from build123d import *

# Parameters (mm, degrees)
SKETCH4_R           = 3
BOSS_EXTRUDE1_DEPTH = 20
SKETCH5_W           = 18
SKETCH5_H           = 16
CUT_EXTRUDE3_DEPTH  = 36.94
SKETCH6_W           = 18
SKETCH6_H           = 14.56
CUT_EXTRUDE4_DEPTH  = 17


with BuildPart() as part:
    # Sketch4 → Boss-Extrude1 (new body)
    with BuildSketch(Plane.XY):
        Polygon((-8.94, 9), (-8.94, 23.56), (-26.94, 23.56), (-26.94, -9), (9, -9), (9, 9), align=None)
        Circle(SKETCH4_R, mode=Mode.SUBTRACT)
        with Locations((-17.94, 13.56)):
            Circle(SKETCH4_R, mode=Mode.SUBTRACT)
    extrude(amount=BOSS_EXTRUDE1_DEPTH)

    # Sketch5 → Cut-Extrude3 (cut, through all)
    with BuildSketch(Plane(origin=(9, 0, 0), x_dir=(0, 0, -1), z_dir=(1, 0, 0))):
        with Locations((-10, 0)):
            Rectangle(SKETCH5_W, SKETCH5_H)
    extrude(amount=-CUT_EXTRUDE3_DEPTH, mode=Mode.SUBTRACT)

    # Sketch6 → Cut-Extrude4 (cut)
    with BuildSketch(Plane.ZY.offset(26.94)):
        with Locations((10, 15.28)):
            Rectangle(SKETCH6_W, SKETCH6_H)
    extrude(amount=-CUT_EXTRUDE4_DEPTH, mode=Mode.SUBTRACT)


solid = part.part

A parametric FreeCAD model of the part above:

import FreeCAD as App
import Part
import Sketcher
Q = App.Units.Quantity

doc = App.newDocument("Part")
params = doc.addObject("Spreadsheet::Sheet", "Params")
for row, (alias, value) in enumerate([
    ("sketch1_diameter", "6 mm"),
    ("sketch1_width", "18 mm"),
    ("sketch1_width2", "35.94 mm"),
    ("sketch1_height", "14.56 mm"),
    ("pad1_length", "20 mm"),
    ("sketch2_width", "16 mm"),
    ("sketch2_height", "18 mm"),
    ("sketch3_height", "18 mm"),
    ("sketch3_width", "14.56 mm"),
    ("pocket2_length", "17 mm"),
], start=1):
    params.set(f"A{row}", alias)
    params.set(f"B{row}", "=" + value)
    params.setAlias(f"B{row}", alias)

body = doc.addObject("PartDesign::Body", "Body")

sketch1 = doc.addObject("Sketcher::SketchObject", "Sketch")
body.addObject(sketch1)
sketch1.AttachmentSupport = (doc.XY_Plane, [""])
sketch1.MapMode = "FlatFace"
sketch1.addGeometry(Part.LineSegment(App.Vector(-8.9, 9, 0), App.Vector(-8.9, 23.6, 0)), False)
sketch1.addGeometry(Part.LineSegment(App.Vector(-8.9, 23.6, 0), App.Vector(-26.9, 23.6, 0)), False)
sketch1.addGeometry(Part.LineSegment(App.Vector(-26.9, 23.6, 0), App.Vector(-26.9, -9, 0)), False)
sketch1.addGeometry(Part.LineSegment(App.Vector(-26.9, -9, 0), App.Vector(9, -9, 0)), False)
sketch1.addGeometry(Part.LineSegment(App.Vector(9, -9, 0), App.Vector(9, 9, 0)), False)
sketch1.addGeometry(Part.LineSegment(App.Vector(9, 9, 0), App.Vector(-8.9, 9, 0)), False)
sketch1.addGeometry(Part.Circle(App.Vector(0, 0, 0), App.Vector(0, 0, 1), 3), False)
sketch1.addGeometry(Part.Circle(App.Vector(-17.9, 13.6, 0), App.Vector(0, 0, 1), 3), False)
sketch1.addConstraint(Sketcher.Constraint("Coincident", 0, 2, 1, 1))
sketch1.addConstraint(Sketcher.Constraint("Coincident", 1, 2, 2, 1))
sketch1.addConstraint(Sketcher.Constraint("Coincident", 2, 2, 3, 1))
sketch1.addConstraint(Sketcher.Constraint("Coincident", 3, 2, 4, 1))
sketch1.addConstraint(Sketcher.Constraint("Coincident", 4, 2, 5, 1))
sketch1.addConstraint(Sketcher.Constraint("Coincident", 5, 2, 0, 1))
sketch1.addConstraint(Sketcher.Constraint("Vertical", 0))
sketch1.addConstraint(Sketcher.Constraint("Horizontal", 1))
sketch1.addConstraint(Sketcher.Constraint("Vertical", 2))
sketch1.addConstraint(Sketcher.Constraint("Horizontal", 3))
sketch1.addConstraint(Sketcher.Constraint("Vertical", 4))
sketch1.addConstraint(Sketcher.Constraint("Horizontal", 5))
sketch1.addConstraint(Sketcher.Constraint("Coincident", 6, 3, -1, 1))
sketch1.addConstraint(Sketcher.Constraint("Equal", 6, 7))
sketch1.addConstraint(Sketcher.Constraint("Equal", 1, 4))
sketch1.addConstraint(Sketcher.Constraint("Diameter", 6, Q("6 mm")))
sketch1.addConstraint(Sketcher.Constraint("DistanceX", 1, 2, 1, 1, Q("18 mm")))
sketch1.addConstraint(Sketcher.Constraint("DistanceY", 2, 2, -1, 1, Q("9 mm")))
sketch1.addConstraint(Sketcher.Constraint("DistanceX", -1, 1, 3, 2, Q("9 mm")))
sketch1.addConstraint(Sketcher.Constraint("DistanceX", 7, 3, 0, 2, Q("9 mm")))
sketch1.addConstraint(Sketcher.Constraint("DistanceY", 7, 3, 0, 2, Q("10 mm")))
sketch1.addConstraint(Sketcher.Constraint("DistanceX", 3, 1, 3, 2, Q("35.94 mm")))
sketch1.addConstraint(Sketcher.Constraint("DistanceY", 0, 1, 0, 2, Q("14.56 mm")))
sketch1.setExpression("Constraints[15]", "Params.sketch1_diameter")
sketch1.setExpression("Constraints[16]", "Params.sketch1_width")
sketch1.setExpression("Constraints[21]", "Params.sketch1_width2")
sketch1.setExpression("Constraints[22]", "Params.sketch1_height")
pad1 = doc.addObject("PartDesign::Pad", "Pad")
body.addObject(pad1)
pad1.Profile = sketch1
pad1.setExpression("Length", "Params.pad1_length")

sketch2 = doc.addObject("Sketcher::SketchObject", "Sketch001")
body.addObject(sketch2)
sketch2.AttachmentSupport = (doc.YZ_Plane, [""])
sketch2.MapMode = "FlatFace"
sketch2.AttachmentOffset = App.Placement(App.Vector(0, 0, 9), App.Rotation())
sketch2.addGeometry(Part.LineSegment(App.Vector(8, 19, 0), App.Vector(-8, 19, 0)), False)
sketch2.addGeometry(Part.LineSegment(App.Vector(-8, 19, 0), App.Vector(-8, 1, 0)), False)
sketch2.addGeometry(Part.LineSegment(App.Vector(-8, 1, 0), App.Vector(8, 1, 0)), False)
sketch2.addGeometry(Part.LineSegment(App.Vector(8, 1, 0), App.Vector(8, 19, 0)), False)
sketch2.addConstraint(Sketcher.Constraint("Coincident", 0, 2, 1, 1))
sketch2.addConstraint(Sketcher.Constraint("Coincident", 1, 2, 2, 1))
sketch2.addConstraint(Sketcher.Constraint("Coincident", 2, 2, 3, 1))
sketch2.addConstraint(Sketcher.Constraint("Coincident", 3, 2, 0, 1))
sketch2.addConstraint(Sketcher.Constraint("Horizontal", 0))
sketch2.addConstraint(Sketcher.Constraint("Vertical", 1))
sketch2.addConstraint(Sketcher.Constraint("Horizontal", 2))
sketch2.addConstraint(Sketcher.Constraint("Vertical", 3))
sketch2.addConstraint(Sketcher.Constraint("DistanceX", 0, 2, 0, 1, Q("16 mm")))
sketch2.addConstraint(Sketcher.Constraint("DistanceY", 1, 2, 1, 1, Q("18 mm")))
sketch2.addConstraint(Sketcher.Constraint("DistanceX", 0, 2, -1, 1, Q("8 mm")))
sketch2.addConstraint(Sketcher.Constraint("DistanceY", -1, 1, 0, 2, Q("19 mm")))
sketch2.setExpression("Constraints[8]", "Params.sketch2_width")
sketch2.setExpression("Constraints[9]", "Params.sketch2_height")
pocket1 = doc.addObject("PartDesign::Pocket", "Pocket")
body.addObject(pocket1)
pocket1.Profile = sketch2
pocket1.Type = "ThroughAll"

sketch3 = doc.addObject("Sketcher::SketchObject", "Sketch002")
body.addObject(sketch3)
sketch3.AttachmentSupport = (doc.YZ_Plane, [""])
sketch3.MapMode = "FlatFace"
sketch3.AttachmentOffset = App.Placement(App.Vector(0, 0, -26.94), App.Rotation())
sketch3.addGeometry(Part.LineSegment(App.Vector(23, 1, 0), App.Vector(8, 1, 0)), False)
sketch3.addGeometry(Part.LineSegment(App.Vector(8, 1, 0), App.Vector(8, 19, 0)), False)
sketch3.addGeometry(Part.LineSegment(App.Vector(8, 19, 0), App.Vector(23, 19, 0)), False)
sketch3.addGeometry(Part.LineSegment(App.Vector(23, 19, 0), App.Vector(23, 1, 0)), False)
sketch3.addConstraint(Sketcher.Constraint("Coincident", 0, 2, 1, 1))
sketch3.addConstraint(Sketcher.Constraint("Coincident", 1, 2, 2, 1))
sketch3.addConstraint(Sketcher.Constraint("Coincident", 2, 2, 3, 1))
sketch3.addConstraint(Sketcher.Constraint("Coincident", 3, 2, 0, 1))
sketch3.addConstraint(Sketcher.Constraint("Horizontal", 0))
sketch3.addConstraint(Sketcher.Constraint("Vertical", 1))
sketch3.addConstraint(Sketcher.Constraint("Horizontal", 2))
sketch3.addConstraint(Sketcher.Constraint("Vertical", 3))
sketch3.addConstraint(Sketcher.Constraint("DistanceY", 1, 1, 1, 2, Q("18 mm")))
sketch3.addConstraint(Sketcher.Constraint("DistanceX", -1, 1, 0, 2, Q("8 mm")))
sketch3.addConstraint(Sketcher.Constraint("DistanceY", -1, 1, 0, 2, Q("1 mm")))
sketch3.addConstraint(Sketcher.Constraint("DistanceX", 0, 2, 0, 1, Q("14.56 mm")))
sketch3.setExpression("Constraints[8]", "Params.sketch3_height")
sketch3.setExpression("Constraints[11]", "Params.sketch3_width")
pocket2 = doc.addObject("PartDesign::Pocket", "Pocket001")
body.addObject(pocket2)
pocket2.Profile = sketch3
pocket2.setExpression("Length", "Params.pocket2_length")
pocket2.Reversed = True

doc.recompute()
